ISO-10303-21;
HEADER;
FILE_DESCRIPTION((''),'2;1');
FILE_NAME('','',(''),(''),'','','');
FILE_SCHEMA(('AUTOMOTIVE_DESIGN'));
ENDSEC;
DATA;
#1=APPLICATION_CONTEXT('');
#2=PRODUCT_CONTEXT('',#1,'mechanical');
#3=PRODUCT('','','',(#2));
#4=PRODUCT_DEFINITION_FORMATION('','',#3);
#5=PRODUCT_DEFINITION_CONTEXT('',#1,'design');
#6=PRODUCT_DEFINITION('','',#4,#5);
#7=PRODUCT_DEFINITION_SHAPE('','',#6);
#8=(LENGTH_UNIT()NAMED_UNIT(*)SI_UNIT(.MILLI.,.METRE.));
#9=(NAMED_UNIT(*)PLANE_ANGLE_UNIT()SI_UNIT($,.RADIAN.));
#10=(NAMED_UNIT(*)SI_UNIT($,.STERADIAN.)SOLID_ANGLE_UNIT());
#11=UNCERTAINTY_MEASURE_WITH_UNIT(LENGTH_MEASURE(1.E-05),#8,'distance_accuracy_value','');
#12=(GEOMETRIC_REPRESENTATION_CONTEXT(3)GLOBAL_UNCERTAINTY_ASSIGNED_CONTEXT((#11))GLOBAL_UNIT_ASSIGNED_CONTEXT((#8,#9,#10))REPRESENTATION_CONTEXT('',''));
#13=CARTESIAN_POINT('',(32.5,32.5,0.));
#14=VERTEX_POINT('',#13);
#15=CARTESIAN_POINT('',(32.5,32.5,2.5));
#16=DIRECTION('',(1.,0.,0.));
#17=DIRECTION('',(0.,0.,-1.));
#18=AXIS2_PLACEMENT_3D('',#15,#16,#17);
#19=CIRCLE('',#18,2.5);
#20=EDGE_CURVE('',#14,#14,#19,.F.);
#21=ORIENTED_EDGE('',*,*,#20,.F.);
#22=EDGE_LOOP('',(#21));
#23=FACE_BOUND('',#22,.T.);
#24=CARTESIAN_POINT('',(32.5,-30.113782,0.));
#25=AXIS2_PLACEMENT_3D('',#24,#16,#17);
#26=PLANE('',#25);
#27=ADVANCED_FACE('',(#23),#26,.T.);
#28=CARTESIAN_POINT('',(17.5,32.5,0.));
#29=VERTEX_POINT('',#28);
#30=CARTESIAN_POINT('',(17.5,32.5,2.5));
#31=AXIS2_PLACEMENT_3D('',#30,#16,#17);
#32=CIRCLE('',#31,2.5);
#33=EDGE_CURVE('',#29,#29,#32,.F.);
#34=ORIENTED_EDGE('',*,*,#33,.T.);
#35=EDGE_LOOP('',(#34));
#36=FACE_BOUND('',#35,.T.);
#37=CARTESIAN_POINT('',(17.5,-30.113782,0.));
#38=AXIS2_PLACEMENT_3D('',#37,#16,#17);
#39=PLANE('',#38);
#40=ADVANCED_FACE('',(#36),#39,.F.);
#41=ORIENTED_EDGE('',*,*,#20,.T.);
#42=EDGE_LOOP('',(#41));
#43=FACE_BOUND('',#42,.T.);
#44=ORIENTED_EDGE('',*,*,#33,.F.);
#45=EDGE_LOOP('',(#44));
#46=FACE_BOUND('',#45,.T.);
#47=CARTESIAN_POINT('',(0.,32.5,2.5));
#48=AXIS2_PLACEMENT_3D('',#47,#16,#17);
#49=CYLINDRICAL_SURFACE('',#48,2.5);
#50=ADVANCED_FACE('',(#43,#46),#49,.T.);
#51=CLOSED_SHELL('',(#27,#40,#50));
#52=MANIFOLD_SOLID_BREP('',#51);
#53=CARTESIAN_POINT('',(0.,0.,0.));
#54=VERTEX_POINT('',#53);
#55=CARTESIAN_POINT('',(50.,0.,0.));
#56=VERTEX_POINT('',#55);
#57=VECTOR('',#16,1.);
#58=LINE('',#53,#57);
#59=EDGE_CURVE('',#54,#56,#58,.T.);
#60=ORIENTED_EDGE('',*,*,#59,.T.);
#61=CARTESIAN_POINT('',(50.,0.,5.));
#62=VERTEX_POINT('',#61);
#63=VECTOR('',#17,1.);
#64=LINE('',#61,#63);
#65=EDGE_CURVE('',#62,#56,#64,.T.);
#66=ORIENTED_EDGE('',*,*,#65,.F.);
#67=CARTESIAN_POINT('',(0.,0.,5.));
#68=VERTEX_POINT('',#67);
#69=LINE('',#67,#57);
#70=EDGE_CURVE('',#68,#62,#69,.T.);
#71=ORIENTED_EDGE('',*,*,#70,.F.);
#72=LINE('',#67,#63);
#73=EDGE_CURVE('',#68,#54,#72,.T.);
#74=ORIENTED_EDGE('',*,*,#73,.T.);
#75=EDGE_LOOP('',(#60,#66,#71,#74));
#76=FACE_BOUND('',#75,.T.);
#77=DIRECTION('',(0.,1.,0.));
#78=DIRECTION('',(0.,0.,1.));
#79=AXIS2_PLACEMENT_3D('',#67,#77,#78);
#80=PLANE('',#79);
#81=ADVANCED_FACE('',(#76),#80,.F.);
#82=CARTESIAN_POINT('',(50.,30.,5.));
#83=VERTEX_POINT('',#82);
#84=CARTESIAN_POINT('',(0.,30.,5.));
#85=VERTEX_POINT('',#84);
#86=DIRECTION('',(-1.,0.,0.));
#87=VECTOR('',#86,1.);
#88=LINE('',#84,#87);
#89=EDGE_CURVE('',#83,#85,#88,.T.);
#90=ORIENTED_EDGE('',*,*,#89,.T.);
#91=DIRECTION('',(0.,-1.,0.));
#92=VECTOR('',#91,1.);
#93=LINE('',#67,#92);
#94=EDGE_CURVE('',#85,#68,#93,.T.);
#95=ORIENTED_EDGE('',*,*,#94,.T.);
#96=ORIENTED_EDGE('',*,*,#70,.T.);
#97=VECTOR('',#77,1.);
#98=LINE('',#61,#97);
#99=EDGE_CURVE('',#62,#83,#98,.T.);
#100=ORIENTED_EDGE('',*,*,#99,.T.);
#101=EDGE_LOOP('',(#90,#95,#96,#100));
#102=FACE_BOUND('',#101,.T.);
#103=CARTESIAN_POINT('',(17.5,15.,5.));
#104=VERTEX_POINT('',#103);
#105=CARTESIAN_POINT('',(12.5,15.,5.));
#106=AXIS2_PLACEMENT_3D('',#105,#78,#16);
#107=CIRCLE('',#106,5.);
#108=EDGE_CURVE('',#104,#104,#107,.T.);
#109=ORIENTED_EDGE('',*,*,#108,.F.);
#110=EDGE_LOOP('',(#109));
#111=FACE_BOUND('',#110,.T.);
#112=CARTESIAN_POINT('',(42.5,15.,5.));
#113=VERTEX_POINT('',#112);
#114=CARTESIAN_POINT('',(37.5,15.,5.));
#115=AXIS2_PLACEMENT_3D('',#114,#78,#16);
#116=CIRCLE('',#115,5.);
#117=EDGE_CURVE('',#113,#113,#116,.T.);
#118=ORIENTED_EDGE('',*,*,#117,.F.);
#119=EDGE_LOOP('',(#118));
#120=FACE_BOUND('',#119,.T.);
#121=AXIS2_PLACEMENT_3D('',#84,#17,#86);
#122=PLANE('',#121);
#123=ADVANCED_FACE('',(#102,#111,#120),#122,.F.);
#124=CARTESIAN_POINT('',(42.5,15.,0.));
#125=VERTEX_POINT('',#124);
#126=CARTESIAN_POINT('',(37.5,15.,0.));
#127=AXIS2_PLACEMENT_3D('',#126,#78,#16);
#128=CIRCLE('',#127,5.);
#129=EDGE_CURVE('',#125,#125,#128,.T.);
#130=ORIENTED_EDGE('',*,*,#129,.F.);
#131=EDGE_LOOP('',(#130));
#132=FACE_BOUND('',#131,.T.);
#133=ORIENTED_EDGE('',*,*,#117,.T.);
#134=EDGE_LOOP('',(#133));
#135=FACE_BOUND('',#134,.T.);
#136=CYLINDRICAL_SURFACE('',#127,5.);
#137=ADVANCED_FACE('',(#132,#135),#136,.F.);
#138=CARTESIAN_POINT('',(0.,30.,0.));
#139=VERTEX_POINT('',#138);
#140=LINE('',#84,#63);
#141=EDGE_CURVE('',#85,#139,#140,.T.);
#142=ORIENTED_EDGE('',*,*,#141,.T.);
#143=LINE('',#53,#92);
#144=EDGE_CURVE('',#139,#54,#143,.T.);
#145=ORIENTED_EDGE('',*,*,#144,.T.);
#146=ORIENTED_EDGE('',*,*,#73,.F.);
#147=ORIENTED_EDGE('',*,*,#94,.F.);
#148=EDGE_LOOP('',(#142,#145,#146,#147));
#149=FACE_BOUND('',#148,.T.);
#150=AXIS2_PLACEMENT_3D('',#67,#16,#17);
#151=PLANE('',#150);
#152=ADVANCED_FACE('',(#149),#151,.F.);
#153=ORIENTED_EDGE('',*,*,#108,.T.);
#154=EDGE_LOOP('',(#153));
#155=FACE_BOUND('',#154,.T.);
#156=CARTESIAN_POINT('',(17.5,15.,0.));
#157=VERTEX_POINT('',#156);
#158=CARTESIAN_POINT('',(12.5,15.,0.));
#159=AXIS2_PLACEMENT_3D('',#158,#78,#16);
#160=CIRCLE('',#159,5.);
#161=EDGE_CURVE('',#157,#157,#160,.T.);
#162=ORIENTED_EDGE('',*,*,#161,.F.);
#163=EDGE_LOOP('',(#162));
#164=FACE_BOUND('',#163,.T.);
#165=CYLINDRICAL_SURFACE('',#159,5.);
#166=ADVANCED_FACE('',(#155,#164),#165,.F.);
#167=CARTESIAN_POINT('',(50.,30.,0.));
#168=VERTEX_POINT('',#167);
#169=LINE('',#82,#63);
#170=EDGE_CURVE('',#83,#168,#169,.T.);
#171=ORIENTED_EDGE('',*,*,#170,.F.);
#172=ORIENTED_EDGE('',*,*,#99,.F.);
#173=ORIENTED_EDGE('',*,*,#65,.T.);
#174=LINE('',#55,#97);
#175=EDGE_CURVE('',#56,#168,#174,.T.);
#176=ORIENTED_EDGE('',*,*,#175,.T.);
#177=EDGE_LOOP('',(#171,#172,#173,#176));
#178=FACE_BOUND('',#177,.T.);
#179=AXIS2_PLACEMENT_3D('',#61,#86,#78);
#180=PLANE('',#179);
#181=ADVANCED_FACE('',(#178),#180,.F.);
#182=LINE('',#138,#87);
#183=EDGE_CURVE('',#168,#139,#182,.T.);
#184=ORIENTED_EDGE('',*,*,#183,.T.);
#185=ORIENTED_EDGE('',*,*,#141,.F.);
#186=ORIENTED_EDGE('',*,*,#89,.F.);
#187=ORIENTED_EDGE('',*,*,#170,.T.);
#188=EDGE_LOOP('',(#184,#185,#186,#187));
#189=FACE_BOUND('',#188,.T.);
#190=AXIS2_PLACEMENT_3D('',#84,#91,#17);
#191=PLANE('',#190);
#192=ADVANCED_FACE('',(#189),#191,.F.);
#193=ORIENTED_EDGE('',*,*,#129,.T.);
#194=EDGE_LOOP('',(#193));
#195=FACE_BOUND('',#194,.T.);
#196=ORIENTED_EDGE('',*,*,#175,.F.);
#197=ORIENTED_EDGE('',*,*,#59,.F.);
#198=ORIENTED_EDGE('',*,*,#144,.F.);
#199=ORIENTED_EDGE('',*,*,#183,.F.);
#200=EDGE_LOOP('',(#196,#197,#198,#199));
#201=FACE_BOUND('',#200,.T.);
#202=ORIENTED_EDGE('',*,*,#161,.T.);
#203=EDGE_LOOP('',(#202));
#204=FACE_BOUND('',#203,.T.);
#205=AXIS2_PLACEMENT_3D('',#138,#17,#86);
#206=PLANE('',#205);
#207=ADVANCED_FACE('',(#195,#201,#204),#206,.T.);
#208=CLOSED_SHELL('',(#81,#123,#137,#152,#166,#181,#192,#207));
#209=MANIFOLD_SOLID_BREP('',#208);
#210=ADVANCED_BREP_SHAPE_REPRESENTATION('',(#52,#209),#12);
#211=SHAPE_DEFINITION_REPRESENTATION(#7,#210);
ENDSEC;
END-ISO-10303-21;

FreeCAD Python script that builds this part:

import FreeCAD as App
import Part
import Sketcher

V = App.Vector


def add_polygon(sketch, points):
    """Adds a closed chain of lines whose ends are joined by coincident constraints."""
    first, n = sketch.GeometryCount, len(points)
    for a, b in zip(points, points[1:] + points[:1]):
        sketch.addGeometry(Part.LineSegment(App.Vector(*a, 0), App.Vector(*b, 0)), False)
    for i in range(n):
        sketch.addConstraint(Sketcher.Constraint("Coincident", first + i, 2, first + (i + 1) % n, 1))

doc = App.newDocument("Part")
body = doc.addObject("PartDesign::Body", "Body")

sketch1 = doc.addObject("Sketcher::SketchObject", "Sketch")
body.addObject(sketch1)
sketch1.AttachmentSupport = (doc.XY_Plane, [""])
sketch1.MapMode = "FlatFace"
add_polygon(sketch1, [(0, 30), (0, 0), (50, 0), (50, 30)])
sketch1.addConstraint(Sketcher.Constraint("Vertical", 0))
sketch1.addConstraint(Sketcher.Constraint("Horizontal", 1))
sketch1.addConstraint(Sketcher.Constraint("Vertical", 2))
sketch1.addConstraint(Sketcher.Constraint("Horizontal", 3))
sketch1.addConstraint(Sketcher.Constraint("Coincident", 0, 2, -1, 1))
sketch1.addConstraint(Sketcher.Constraint("DistanceX", 1, 1, 1, 2, 50.0))
sketch1.addConstraint(Sketcher.Constraint("DistanceY", 0, 2, 0, 1, 30.0))
pad1 = doc.addObject("PartDesign::Pad", "Pad")
body.addObject(pad1)
pad1.Profile = sketch1
pad1.Length = 5

sketch2 = doc.addObject("Sketcher::SketchObject", "Sketch001")
body.addObject(sketch2)
sketch2.AttachmentSupport = (doc.XY_Plane, [""])
sketch2.MapMode = "FlatFace"
sketch2.AttachmentOffset = App.Placement(V(0, 0, 5), App.Rotation())
sketch2.addGeometry(Part.Circle(V(12, 15, 0), V(0, 0, 1), 5), False)
sketch2.addGeometry(Part.Circle(V(38, 15, 0), V(0, 0, 1), 5), False)
sketch2.addConstraint(Sketcher.Constraint("Equal", 0, 1))
sketch2.addConstraint(Sketcher.Constraint("Horizontal", 0, 3, 1, 3))
sketch2.addConstraint(Sketcher.Constraint("Diameter", 0, 10.0))
sketch2.addConstraint(Sketcher.Constraint("DistanceY", -1, 1, 0, 3, 15.0))
sketch2.addConstraint(Sketcher.Constraint("DistanceX", 0, 3, 1, 3, 25.0))
sketch2.addConstraint(Sketcher.Constraint("DistanceX", -1, 1, 0, 3, 12.5))
pocket1 = doc.addObject("PartDesign::Pocket", "Pocket")
body.addObject(pocket1)
pocket1.Profile = sketch2
pocket1.Type = "ThroughAll"
body2 = doc.addObject("PartDesign::Body", "Body001")

sketch3 = doc.addObject("Sketcher::SketchObject", "Sketch002")
body2.addObject(sketch3)
sketch3.AttachmentSupport = (doc.getObject("YZ_Plane001"), [""])
sketch3.MapMode = "FlatFace"
sketch3.AttachmentOffset = App.Placement(V(0, 0, 50), App.Rotation())
sketch3.addGeometry(Part.Circle(V(32.5, 2.5, 0), V(0, 0, 1), 2.5), False)
sketch3.addConstraint(Sketcher.Constraint("Diameter", 0, 5.0))
sketch3.addConstraint(Sketcher.Constraint("DistanceX", -1, 1, 0, 3, 32.5))
sketch3.addConstraint(Sketcher.Constraint("DistanceY", -1, 1, 0, 3, 2.5))
pad2 = doc.addObject("PartDesign::Pad", "Pad001")
body2.addObject(pad2)
pad2.Profile = sketch3
pad2.Length = 50
pad2.Reversed = True

sketch4 = doc.addObject("Sketcher::SketchObject", "Sketch003")
body2.addObject(sketch4)
sketch4.AttachmentSupport = (doc.getObject("XY_Plane001"), [""])
sketch4.MapMode = "FlatFace"
sketch4.AttachmentOffset = App.Placement(V(0, 0, 5), App.Rotation())
add_polygon(sketch4, [(0, 35), (0, 30), (18, 30), (18, 35)])
add_polygon(sketch4, [(32, 35), (32, 30), (50, 30), (50, 35)])
sketch4.addConstraint(Sketcher.Constraint("Vertical", 0))
sketch4.addConstraint(Sketcher.Constraint("Horizontal", 1))
sketch4.addConstraint(Sketcher.Constraint("Vertical", 2))
sketch4.addConstraint(Sketcher.Constraint("Horizontal", 3))
sketch4.addConstraint(Sketcher.Constraint("Vertical", 4))
sketch4.addConstraint(Sketcher.Constraint("Horizontal", 5))
sketch4.addConstraint(Sketcher.Constraint("Vertical", 6))
sketch4.addConstraint(Sketcher.Constraint("Horizontal", 7))
sketch4.addConstraint(Sketcher.Constraint("PointOnObject", 0, 2, -2))
sketch4.addConstraint(Sketcher.Constraint("Horizontal", 1, 2, 4, 2))
sketch4.addConstraint(Sketcher.Constraint("Horizontal", 3, 2, 6, 2))
sketch4.addConstraint(Sketcher.Constraint("Equal", 3, 5))
sketch4.addConstraint(Sketcher.Constraint("DistanceY", 0, 2, 0, 1, 5.0))
sketch4.addConstraint(Sketcher.Constraint("DistanceX", 1, 1, 1, 2, 17.5))
sketch4.addConstraint(Sketcher.Constraint("DistanceY", -1, 1, 0, 2, 30.0))
sketch4.addConstraint(Sketcher.Constraint("DistanceX", -1, 1, 5, 2, 50.0))
pocket2 = doc.addObject("PartDesign::Pocket", "Pocket001")
body2.addObject(pocket2)
pocket2.Profile = sketch4
pocket2.Type = "ThroughAll"

doc.recompute()
